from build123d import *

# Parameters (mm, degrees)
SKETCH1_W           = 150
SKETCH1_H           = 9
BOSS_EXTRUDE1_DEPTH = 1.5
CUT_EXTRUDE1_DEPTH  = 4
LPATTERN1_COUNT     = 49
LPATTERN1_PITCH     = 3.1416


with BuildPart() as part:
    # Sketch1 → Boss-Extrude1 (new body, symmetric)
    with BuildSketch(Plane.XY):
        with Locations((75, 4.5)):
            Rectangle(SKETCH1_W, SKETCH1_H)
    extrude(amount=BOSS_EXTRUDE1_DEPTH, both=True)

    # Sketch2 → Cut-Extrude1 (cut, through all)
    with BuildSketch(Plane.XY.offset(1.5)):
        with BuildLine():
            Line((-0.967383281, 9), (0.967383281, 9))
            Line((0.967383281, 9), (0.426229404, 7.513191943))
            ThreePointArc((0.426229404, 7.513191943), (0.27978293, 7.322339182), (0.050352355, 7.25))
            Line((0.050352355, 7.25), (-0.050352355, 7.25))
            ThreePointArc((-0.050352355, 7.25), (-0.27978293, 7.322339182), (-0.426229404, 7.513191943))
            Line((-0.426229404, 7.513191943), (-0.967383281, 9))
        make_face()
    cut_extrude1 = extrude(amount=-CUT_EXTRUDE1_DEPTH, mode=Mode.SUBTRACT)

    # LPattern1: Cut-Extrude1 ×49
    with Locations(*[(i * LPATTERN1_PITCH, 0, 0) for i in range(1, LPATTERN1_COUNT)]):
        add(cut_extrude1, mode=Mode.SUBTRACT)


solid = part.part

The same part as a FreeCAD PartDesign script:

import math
import FreeCAD as App
import Part
import Sketcher
Q = App.Units.Quantity

doc = App.newDocument("Part")
body = doc.addObject("PartDesign::Body", "Body")

# Sketch on XY plane
sketch1 = doc.addObject("Sketcher::SketchObject", "Sketch")
body.addObject(sketch1)
sketch1.AttachmentSupport = (doc.XY_Plane, [""])
sketch1.MapMode = "FlatFace"
sketch1.addGeometry(Part.LineSegment(App.Vector(0, 9, 0), App.Vector(0, 0, 0)), False)
sketch1.addGeometry(Part.LineSegment(App.Vector(0, 0, 0), App.Vector(150, 0, 0)), False)
sketch1.addGeometry(Part.LineSegment(App.Vector(150, 0, 0), App.Vector(150, 9, 0)), False)
sketch1.addGeometry(Part.LineSegment(App.Vector(150, 9, 0), App.Vector(0, 9, 0)), False)
sketch1.addConstraint(Sketcher.Constraint("Coincident", 0, 2, 1, 1))
sketch1.addConstraint(Sketcher.Constraint("Coincident", 1, 2, 2, 1))
sketch1.addConstraint(Sketcher.Constraint("Coincident", 2, 2, 3, 1))
sketch1.addConstraint(Sketcher.Constraint("Coincident", 3, 2, 0, 1))
sketch1.addConstraint(Sketcher.Constraint("Vertical", 0))
sketch1.addConstraint(Sketcher.Constraint("Horizontal", 1))
sketch1.addConstraint(Sketcher.Constraint("Vertical", 2))
sketch1.addConstraint(Sketcher.Constraint("Horizontal", 3))
sketch1.addConstraint(Sketcher.Constraint("Coincident", 0, 2, -1, 1))
sketch1.addConstraint(Sketcher.Constraint("DistanceX", 1, 1, 1, 2, 150.0))
sketch1.addConstraint(Sketcher.Constraint("DistanceY", 0, 2, 0, 1, 9.0))
pad1 = doc.addObject("PartDesign::Pad", "Pad")
body.addObject(pad1)
pad1.Profile = sketch1
pad1.Length = 3
pad1.Midplane = True

# Sketch on XY plane
sketch2 = doc.addObject("Sketcher::SketchObject", "Sketch001")
body.addObject(sketch2)
sketch2.AttachmentSupport = (doc.XY_Plane, [""])
sketch2.MapMode = "FlatFace"
sketch2.AttachmentOffset = App.Placement(App.Vector(0, 0, 1.5), App.Rotation())
sketch2.addGeometry(Part.LineSegment(App.Vector(0.97, 9, 0), App.Vector(-0.97, 9, 0)), False)
sketch2.addGeometry(Part.LineSegment(App.Vector(-0.97, 9, 0), App.Vector(-0.43, 7.51, 0)), False)
sketch2.addGeometry(Part.ArcOfCircle(Part.Circle(App.Vector(-0.05, 7.65, 0), App.Vector(0, 0, 1), 0.4), math.radians(-160), math.radians(-90)), False)
sketch2.addGeometry(Part.LineSegment(App.Vector(-0.05, 7.25, 0), App.Vector(0.05, 7.25, 0)), False)
sketch2.addGeometry(Part.ArcOfCircle(Part.Circle(App.Vector(0.05, 7.65, 0), App.Vector(0, 0, 1), 0.4), math.radians(-90), math.radians(-20)), False)
sketch2.addGeometry(Part.LineSegment(App.Vector(0.43, 7.51, 0), App.Vector(0.97, 9, 0)), False)
sketch2.addConstraint(Sketcher.Constraint("Coincident", 0, 2, 1, 1))
sketch2.addConstraint(Sketcher.Constraint("Tangent", 1, 2, 2, 1))
sketch2.addConstraint(Sketcher.Constraint("Tangent", 2, 2, 3, 1))
sketch2.addConstraint(Sketcher.Constraint("Tangent", 3, 2, 4, 1))
sketch2.addConstraint(Sketcher.Constraint("Tangent", 4, 2, 5, 1))
sketch2.addConstraint(Sketcher.Constraint("Coincident", 5, 2, 0, 1))
sketch2.addConstraint(Sketcher.Constraint("Horizontal", 0))
sketch2.addConstraint(Sketcher.Constraint("Horizontal", 3))
sketch2.addConstraint(Sketcher.Constraint("Equal", 2, 4))
sketch2.addConstraint(Sketcher.Constraint("Symmetric", 1, 2, 4, 2, -2))
sketch2.addConstraint(Sketcher.Constraint("Radius", 2, 0.4))
sketch2.addConstraint(Sketcher.Constraint("Angle", 1, Q("-70 deg")))
sketch2.addConstraint(Sketcher.Constraint("DistanceY", -1, 1, 0, 2, 9.0))
sketch2.addConstraint(Sketcher.Constraint("DistanceY", -1, 1, 2, 3, 7.65))
sketch2.addConstraint(Sketcher.Constraint("DistanceX", 0, 2, 0, 1, 1.934767))
pocket1 = doc.addObject("PartDesign::Pocket", "Pocket")
body.addObject(pocket1)
pocket1.Profile = sketch2
pocket1.Type = "ThroughAll"
doc.recompute()

linearpattern = doc.addObject("PartDesign::LinearPattern", "LinearPattern")
body.addObject(linearpattern)
linearpattern.Originals = [pocket1]
linearpattern.Direction = (doc.X_Axis, [""])
linearpattern.Mode = "offset"
linearpattern.Offset = 3.1416
linearpattern.Occurrences = 49
body.Tip = linearpattern

doc.recompute()
